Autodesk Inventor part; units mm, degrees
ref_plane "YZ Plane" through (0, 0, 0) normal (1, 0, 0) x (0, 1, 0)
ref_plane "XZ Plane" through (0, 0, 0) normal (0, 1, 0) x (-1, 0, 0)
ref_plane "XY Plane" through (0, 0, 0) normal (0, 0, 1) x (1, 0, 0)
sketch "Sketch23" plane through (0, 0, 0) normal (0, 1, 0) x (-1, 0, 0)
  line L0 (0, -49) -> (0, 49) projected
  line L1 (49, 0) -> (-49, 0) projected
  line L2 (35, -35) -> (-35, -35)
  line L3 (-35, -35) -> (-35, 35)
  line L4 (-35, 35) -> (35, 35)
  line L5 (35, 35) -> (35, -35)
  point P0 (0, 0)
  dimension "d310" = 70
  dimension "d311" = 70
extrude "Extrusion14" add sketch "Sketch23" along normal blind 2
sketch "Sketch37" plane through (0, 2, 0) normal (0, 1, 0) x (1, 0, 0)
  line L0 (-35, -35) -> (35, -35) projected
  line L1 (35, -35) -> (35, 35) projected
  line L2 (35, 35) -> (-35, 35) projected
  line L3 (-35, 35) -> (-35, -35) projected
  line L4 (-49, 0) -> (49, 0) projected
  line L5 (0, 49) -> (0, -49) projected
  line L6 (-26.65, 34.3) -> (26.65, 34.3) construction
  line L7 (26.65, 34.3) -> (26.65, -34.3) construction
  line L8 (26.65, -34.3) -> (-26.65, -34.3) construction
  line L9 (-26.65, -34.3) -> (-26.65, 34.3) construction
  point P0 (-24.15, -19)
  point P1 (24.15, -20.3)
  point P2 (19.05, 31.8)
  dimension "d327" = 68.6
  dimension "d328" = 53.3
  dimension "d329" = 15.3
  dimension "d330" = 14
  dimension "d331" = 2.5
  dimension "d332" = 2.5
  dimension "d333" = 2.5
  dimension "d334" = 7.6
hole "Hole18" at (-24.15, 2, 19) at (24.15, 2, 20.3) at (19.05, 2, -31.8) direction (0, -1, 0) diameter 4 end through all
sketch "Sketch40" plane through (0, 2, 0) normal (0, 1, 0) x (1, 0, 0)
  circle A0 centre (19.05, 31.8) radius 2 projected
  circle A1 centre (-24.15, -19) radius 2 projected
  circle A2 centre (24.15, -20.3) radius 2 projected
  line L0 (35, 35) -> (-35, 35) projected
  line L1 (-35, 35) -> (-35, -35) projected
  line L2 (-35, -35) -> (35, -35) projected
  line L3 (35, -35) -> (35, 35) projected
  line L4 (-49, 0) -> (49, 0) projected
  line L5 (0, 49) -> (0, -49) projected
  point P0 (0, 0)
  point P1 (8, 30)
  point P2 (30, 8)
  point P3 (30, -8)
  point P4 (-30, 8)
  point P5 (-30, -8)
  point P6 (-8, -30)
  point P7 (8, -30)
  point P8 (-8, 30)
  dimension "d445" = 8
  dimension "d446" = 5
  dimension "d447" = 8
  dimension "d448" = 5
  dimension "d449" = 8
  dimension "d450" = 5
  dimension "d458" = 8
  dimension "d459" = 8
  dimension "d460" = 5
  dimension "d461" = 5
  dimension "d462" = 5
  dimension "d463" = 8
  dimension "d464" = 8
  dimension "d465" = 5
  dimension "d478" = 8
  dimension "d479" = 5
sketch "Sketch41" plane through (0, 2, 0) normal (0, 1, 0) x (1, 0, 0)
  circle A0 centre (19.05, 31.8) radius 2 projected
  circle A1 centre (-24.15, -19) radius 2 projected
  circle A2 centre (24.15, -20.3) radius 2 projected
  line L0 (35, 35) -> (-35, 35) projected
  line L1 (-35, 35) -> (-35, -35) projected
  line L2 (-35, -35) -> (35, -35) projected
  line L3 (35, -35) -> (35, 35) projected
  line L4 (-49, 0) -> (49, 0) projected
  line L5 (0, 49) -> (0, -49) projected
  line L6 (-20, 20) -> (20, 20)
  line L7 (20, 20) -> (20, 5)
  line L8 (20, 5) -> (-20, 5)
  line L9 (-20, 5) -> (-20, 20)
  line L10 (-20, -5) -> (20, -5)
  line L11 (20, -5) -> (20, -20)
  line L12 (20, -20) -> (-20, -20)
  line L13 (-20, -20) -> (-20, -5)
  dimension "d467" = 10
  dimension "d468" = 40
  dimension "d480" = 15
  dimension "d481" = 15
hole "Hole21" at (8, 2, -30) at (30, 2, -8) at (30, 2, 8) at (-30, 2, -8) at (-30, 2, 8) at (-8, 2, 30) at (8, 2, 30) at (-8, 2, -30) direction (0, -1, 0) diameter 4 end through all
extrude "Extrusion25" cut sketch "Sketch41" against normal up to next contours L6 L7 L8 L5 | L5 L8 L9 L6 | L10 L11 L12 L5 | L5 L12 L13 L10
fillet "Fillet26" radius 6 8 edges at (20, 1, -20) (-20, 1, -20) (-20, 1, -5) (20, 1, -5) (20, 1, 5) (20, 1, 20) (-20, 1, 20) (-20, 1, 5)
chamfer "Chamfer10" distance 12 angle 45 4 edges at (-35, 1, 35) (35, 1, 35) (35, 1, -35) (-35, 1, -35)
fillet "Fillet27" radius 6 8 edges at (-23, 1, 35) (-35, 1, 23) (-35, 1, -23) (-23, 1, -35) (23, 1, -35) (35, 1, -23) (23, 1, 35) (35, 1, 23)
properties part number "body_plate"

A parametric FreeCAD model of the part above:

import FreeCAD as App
import Part
import Sketcher
from FreeCAD import Vector
Q = App.Units.Quantity


def edges_at(feature, points):
    """Names of the edges that pass closest to the given points."""
    edges = feature.Shape.Edges
    near = lambda p: min(range(len(edges)), key=lambda i: edges[i].distToShape(Part.Vertex(*p))[0])
    return sorted({f"Edge{near(p) + 1}" for p in points})


def add_polygon(sketch, points):
    """Adds a closed chain of lines whose ends are joined by coincident constraints."""
    first, n = sketch.GeometryCount, len(points)
    for a, b in zip(points, points[1:] + points[:1]):
        sketch.addGeometry(Part.LineSegment(App.Vector(*a, 0), App.Vector(*b, 0)), False)
    for i in range(n):
        sketch.addConstraint(Sketcher.Constraint("Coincident", first + i, 2, first + (i + 1) % n, 1))

doc = App.newDocument("Part")
body = doc.addObject("PartDesign::Body", "Body")

sketch1 = body.newObject("Sketcher::SketchObject", "Sketch")
sketch1.AttachmentSupport = (doc.getObject("XZ_Plane"), [""])
sketch1.MapMode = "FlatFace"
add_polygon(sketch1, [(35, -35), (-35, -35), (-35, 35), (35, 35)])
sketch1.addConstraint(Sketcher.Constraint("Horizontal", 0))
sketch1.addConstraint(Sketcher.Constraint("Vertical", 1))
sketch1.addConstraint(Sketcher.Constraint("Horizontal", 2))
sketch1.addConstraint(Sketcher.Constraint("Vertical", 3))
sketch1.addConstraint(Sketcher.Constraint("Symmetric", 0, 2, 2, 2, -1, 1))
sketch1.addConstraint(Sketcher.Constraint("Equal", 2, 1))
sketch1.addConstraint(Sketcher.Constraint("DistanceX", 0, 2, 0, 1, Q("70 mm")))
pad1 = body.newObject("PartDesign::Pad", "Pad")
pad1.Profile = sketch1
pad1.Length = 2
pad1.Reversed = True

sketch2 = body.newObject("Sketcher::SketchObject", "Sketch001")
sketch2.AttachmentSupport = (doc.getObject("XZ_Plane"), [""])
sketch2.MapMode = "FlatFace"
sketch2.AttachmentOffset = App.Placement(Vector(0, 0, -2), App.Rotation())
sketch2.addGeometry(Part.Circle(Vector(-24.1, 19, 0), Vector(0, 0, 1), 2), False)
sketch2.addGeometry(Part.Circle(Vector(24.1, 20.3, 0), Vector(0, 0, 1), 2), False)
sketch2.addGeometry(Part.Circle(Vector(19.1, -31.8, 0), Vector(0, 0, 1), 2), False)
sketch2.addConstraint(Sketcher.Constraint("Equal", 0, 1))
sketch2.addConstraint(Sketcher.Constraint("Equal", 1, 2))
sketch2.addConstraint(Sketcher.Constraint("Diameter", 0, Q("4 mm")))
sketch2.addConstraint(Sketcher.Constraint("DistanceY", -1, 1, 0, 3, Q("19 mm")))
sketch2.addConstraint(Sketcher.Constraint("DistanceY", -1, 1, 1, 3, Q("20.3 mm")))
sketch2.addConstraint(Sketcher.Constraint("DistanceY", 2, 3, -1, 1, Q("31.8 mm")))
sketch2.addConstraint(Sketcher.Constraint("DistanceX", 0, 3, 1, 3, Q("48.3 mm")))
sketch2.addConstraint(Sketcher.Constraint("DistanceX", 2, 3, 1, 3, Q("5.1 mm")))
sketch2.addConstraint(Sketcher.Constraint("DistanceX", 0, 3, -1, 1, Q("24.15 mm")))
doc.recompute()
hole = body.newObject("PartDesign::Hole", "Hole")
hole.Profile = sketch2
hole.ThreadType = "None"
hole.Diameter = 4
hole.DepthType = "ThroughAll"
hole.Reversed = True

sketch3 = body.newObject("Sketcher::SketchObject", "Sketch002")
sketch3.AttachmentSupport = (doc.getObject("XZ_Plane"), [""])
sketch3.MapMode = "FlatFace"
sketch3.AttachmentOffset = App.Placement(Vector(0, 0, -2), App.Rotation())
sketch3.addGeometry(Part.Circle(Vector(8, -30, 0), Vector(0, 0, 1), 2), False)
sketch3.addGeometry(Part.Circle(Vector(30, -8, 0), Vector(0, 0, 1), 2), False)
sketch3.addGeometry(Part.Circle(Vector(30, 8, 0), Vector(0, 0, 1), 2), False)
sketch3.addGeometry(Part.Circle(Vector(-30, -8, 0), Vector(0, 0, 1), 2), False)
sketch3.addGeometry(Part.Circle(Vector(-30, 8, 0), Vector(0, 0, 1), 2), False)
sketch3.addGeometry(Part.Circle(Vector(-8, 30, 0), Vector(0, 0, 1), 2), False)
sketch3.addGeometry(Part.Circle(Vector(8, 30, 0), Vector(0, 0, 1), 2), False)
sketch3.addGeometry(Part.Circle(Vector(-8, -30, 0), Vector(0, 0, 1), 2), False)
sketch3.addConstraint(Sketcher.Constraint("Equal", 0, 1))
sketch3.addConstraint(Sketcher.Constraint("Equal", 1, 2))
sketch3.addConstraint(Sketcher.Constraint("Equal", 2, 3))
sketch3.addConstraint(Sketcher.Constraint("Equal", 3, 4))
sketch3.addConstraint(Sketcher.Constraint("Equal", 4, 5))
sketch3.addConstraint(Sketcher.Constraint("Equal", 5, 6))
sketch3.addConstraint(Sketcher.Constraint("Equal", 6, 7))
sketch3.addConstraint(Sketcher.Constraint("Symmetric", 2, 3, 3, 3, -1, 1))
sketch3.addConstraint(Sketcher.Constraint("Symmetric", 1, 3, 4, 3, -1, 1))
sketch3.addConstraint(Sketcher.Constraint("Symmetric", 0, 3, 5, 3, -1, 1))
sketch3.addConstraint(Sketcher.Constraint("Symmetric", 6, 3, 7, 3, -1, 1))
sketch3.addConstraint(Sketcher.Constraint("Symmetric", 1, 3, 3, 3, -2))
sketch3.addConstraint(Sketcher.Constraint("Symmetric", 5, 3, 6, 3, -2))
sketch3.addConstraint(Sketcher.Constraint("Diameter", 0, Q("4 mm")))
sketch3.addConstraint(Sketcher.Constraint("DistanceX", -1, 1, 0, 3, Q("8 mm")))
sketch3.addConstraint(Sketcher.Constraint("DistanceY", 0, 3, -1, 1, Q("30 mm")))
sketch3.addConstraint(Sketcher.Constraint("DistanceX", -1, 1, 1, 3, Q("30 mm")))
sketch3.addConstraint(Sketcher.Constraint("DistanceY", 1, 3, -1, 1, Q("8 mm")))
doc.recompute()
hole2 = body.newObject("PartDesign::Hole", "Hole001")
hole2.Profile = sketch3
hole2.ThreadType = "None"
hole2.Diameter = 4
hole2.DepthType = "ThroughAll"
hole2.Reversed = True

sketch4 = body.newObject("Sketcher::SketchObject", "Sketch003")
sketch4.AttachmentSupport = (doc.getObject("XZ_Plane"), [""])
sketch4.MapMode = "FlatFace"
sketch4.AttachmentOffset = App.Placement(Vector(0, 0, -2), App.Rotation())
add_polygon(sketch4, [(20, -20), (-20, -20), (-20, -5), (20, -5)])
add_polygon(sketch4, [(20, 5), (-20, 5), (-20, 20), (20, 20)])
sketch4.addConstraint(Sketcher.Constraint("Horizontal", 0))
sketch4.addConstraint(Sketcher.Constraint("Vertical", 1))
sketch4.addConstraint(Sketcher.Constraint("Horizontal", 2))
sketch4.addConstraint(Sketcher.Constraint("Vertical", 3))
sketch4.addConstraint(Sketcher.Constraint("Horizontal", 4))
sketch4.addConstraint(Sketcher.Constraint("Vertical", 5))
sketch4.addConstraint(Sketcher.Constraint("Horizontal", 6))
sketch4.addConstraint(Sketcher.Constraint("Vertical", 7))
sketch4.addConstraint(Sketcher.Constraint("Symmetric", 2, 2, 4, 2, -1, 1))
sketch4.addConstraint(Sketcher.Constraint("Symmetric", 0, 2, 6, 2, -1, 1))
sketch4.addConstraint(Sketcher.Constraint("Vertical", 1, 2, 4, 2))
sketch4.addConstraint(Sketcher.Constraint("DistanceX", 0, 2, 0, 1, Q("40 mm")))
sketch4.addConstraint(Sketcher.Constraint("DistanceY", 1, 1, 1, 2, Q("15 mm")))
sketch4.addConstraint(Sketcher.Constraint("DistanceY", 1, 2, 4, 2, Q("10 mm")))
pocket1 = body.newObject("PartDesign::Pocket", "Pocket")
pocket1.Profile = sketch4
pocket1.Type = "UpToFirst"
pocket1.Reversed = True
doc.recompute()

fillet = body.newObject("PartDesign::Fillet", "Fillet")
fillet.Base = (pocket1, edges_at(pocket1, [
    (20, 1, -20),
    (-20, 1, -20),
    (-20, 1, -5),
    (20, 1, -5),
    (20, 1, 5),
    (20, 1, 20),
    (-20, 1, 20),
    (-20, 1, 5),
]))
fillet.Radius = 6
doc.recompute()

chamfer = body.newObject("PartDesign::Chamfer", "Chamfer")
chamfer.Base = (fillet, edges_at(fillet, [
    (-35, 1, 35),
    (35, 1, 35),
    (35, 1, -35),
    (-35, 1, -35),
]))
chamfer.Size = 12
doc.recompute()

fillet2 = body.newObject("PartDesign::Fillet", "Fillet001")
fillet2.Base = (chamfer, edges_at(chamfer, [
    (-23, 1, 35),
    (-35, 1, 23),
    (-35, 1, -23),
    (-23, 1, -35),
    (23, 1, -35),
    (35, 1, -23),
    (23, 1, 35),
    (35, 1, 23),
]))
fillet2.Radius = 6

doc.recompute()
